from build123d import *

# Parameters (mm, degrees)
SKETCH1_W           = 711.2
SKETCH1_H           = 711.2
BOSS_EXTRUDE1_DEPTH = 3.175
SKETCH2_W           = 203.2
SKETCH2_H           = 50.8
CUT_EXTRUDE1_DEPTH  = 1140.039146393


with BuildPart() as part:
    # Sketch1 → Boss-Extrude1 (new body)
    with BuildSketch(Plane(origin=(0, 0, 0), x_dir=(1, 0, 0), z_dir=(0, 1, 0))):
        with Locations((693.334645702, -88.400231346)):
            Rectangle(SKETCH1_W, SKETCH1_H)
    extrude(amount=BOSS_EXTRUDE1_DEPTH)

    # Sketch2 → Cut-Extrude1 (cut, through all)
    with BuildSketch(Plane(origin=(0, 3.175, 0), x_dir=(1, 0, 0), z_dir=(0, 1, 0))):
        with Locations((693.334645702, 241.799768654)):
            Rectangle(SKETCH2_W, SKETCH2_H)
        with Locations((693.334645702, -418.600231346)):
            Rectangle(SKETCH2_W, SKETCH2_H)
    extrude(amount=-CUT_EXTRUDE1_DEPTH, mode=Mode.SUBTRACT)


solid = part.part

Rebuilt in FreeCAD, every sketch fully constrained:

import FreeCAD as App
import Part
import Sketcher
from FreeCAD import Vector
Q = App.Units.Quantity

doc = App.newDocument("Part")
body = doc.addObject("PartDesign::Body", "Body")

# Sketch on XZ plane
sketch1 = doc.addObject("Sketcher::SketchObject", "Sketch")
body.addObject(sketch1)
sketch1.AttachmentSupport = (doc.XZ_Plane, [""])
sketch1.MapMode = "FlatFace"
sketch1.addGeometry([
    Part.LineSegment(Vector(337.734646, -267.199769, 0), Vector(337.734646, 444.000231, 0)),
    Part.LineSegment(Vector(337.734646, 444.000231, 0), Vector(1048.934646, 444.000231, 0)),
    Part.LineSegment(Vector(1048.934646, 444.000231, 0), Vector(1048.934646, -267.199769, 0)),
    Part.LineSegment(Vector(1048.934646, -267.199769, 0), Vector(337.734646, -267.199769, 0)),
], False)
sketch1.addConstraint([
    Sketcher.Constraint("Coincident", 0, 2, 1, 1),
    Sketcher.Constraint("Coincident", 1, 2, 2, 1),
    Sketcher.Constraint("Coincident", 2, 2, 3, 1),
    Sketcher.Constraint("Coincident", 3, 2, 0, 1),
    Sketcher.Constraint("Vertical", 0),
    Sketcher.Constraint("Horizontal", 1),
    Sketcher.Constraint("Vertical", 2),
    Sketcher.Constraint("Horizontal", 3),
    Sketcher.Constraint("Equal", 3, 0),
    Sketcher.Constraint("DistanceX", 1, 1, 1, 2, Q("28 in")),
    Sketcher.Constraint("DistanceY", -1, 1, 0, 2, Q("444.000231 mm")),
    Sketcher.Constraint("DistanceX", -1, 1, 0, 2, Q("337.734646 mm")),
])
pad1 = doc.addObject("PartDesign::Pad", "Pad")
body.addObject(pad1)
pad1.Profile = sketch1
pad1.Length = Q("0.125 in")
pad1.Reversed = True

# Sketch on XZ plane
sketch2 = doc.addObject("Sketcher::SketchObject", "Sketch001")
body.addObject(sketch2)
sketch2.AttachmentSupport = (doc.XZ_Plane, [""])
sketch2.MapMode = "FlatFace"
sketch2.AttachmentOffset = App.Placement(Vector(0, 0, -0.125 * 25.4), App.Rotation())
sketch2.addGeometry([
    Part.LineSegment(Vector(591.734646, -267.199769, 0), Vector(591.734646, -216.399769, 0)),  # 0
    Part.LineSegment(Vector(591.734646, -216.399769, 0), Vector(794.934646, -216.399769, 0)),  # 1
    Part.LineSegment(Vector(794.934646, -216.399769, 0), Vector(794.934646, -267.199769, 0)),  # 2
    Part.LineSegment(Vector(794.934646, -267.199769, 0), Vector(591.734646, -267.199769, 0)),  # 3
    Part.LineSegment(Vector(591.734646, 393.200231, 0), Vector(591.734646, 444.000231, 0)),  # 4
    Part.LineSegment(Vector(591.734646, 444.000231, 0), Vector(794.934646, 444.000231, 0)),  # 5
    Part.LineSegment(Vector(794.934646, 444.000231, 0), Vector(794.934646, 393.200231, 0)),  # 6
    Part.LineSegment(Vector(794.934646, 393.200231, 0), Vector(591.734646, 393.200231, 0)),  # 7
], False)
sketch2.addConstraint([
    Sketcher.Constraint("Coincident", 0, 2, 1, 1),
    Sketcher.Constraint("Coincident", 1, 2, 2, 1),
    Sketcher.Constraint("Coincident", 2, 2, 3, 1),
    Sketcher.Constraint("Coincident", 3, 2, 0, 1),
    Sketcher.Constraint("Coincident", 4, 2, 5, 1),
    Sketcher.Constraint("Coincident", 5, 2, 6, 1),
    Sketcher.Constraint("Coincident", 6, 2, 7, 1),
    Sketcher.Constraint("Coincident", 7, 2, 4, 1),
    Sketcher.Constraint("Vertical", 0),
    Sketcher.Constraint("Horizontal", 1),
    Sketcher.Constraint("Vertical", 2),
    Sketcher.Constraint("Horizontal", 3),
    Sketcher.Constraint("Vertical", 4),
    Sketcher.Constraint("Horizontal", 5),
    Sketcher.Constraint("Vertical", 6),
    Sketcher.Constraint("Horizontal", 7),
    Sketcher.Constraint("Vertical", 3, 2, 4, 2),
    Sketcher.Constraint("Vertical", 2, 2, 5, 2),
    Sketcher.Constraint("Equal", 2, 4),
    Sketcher.Constraint("DistanceX", 1, 1, 1, 2, Q("8 in")),
    Sketcher.Constraint("DistanceY", 0, 1, 0, 2, Q("2 in")),
    Sketcher.Constraint("DistanceY", 0, 2, 4, 2, Q("26 in")),
    Sketcher.Constraint("DistanceY", 0, 2, -1, 1, Q("216.399769 mm")),
    Sketcher.Constraint("DistanceX", -1, 1, 0, 2, Q("591.734646 mm")),
])
pocket1 = doc.addObject("PartDesign::Pocket", "Pocket")
body.addObject(pocket1)
pocket1.Profile = sketch2
pocket1.Type = "ThroughAll"
pocket1.Reversed = True

doc.recompute()
